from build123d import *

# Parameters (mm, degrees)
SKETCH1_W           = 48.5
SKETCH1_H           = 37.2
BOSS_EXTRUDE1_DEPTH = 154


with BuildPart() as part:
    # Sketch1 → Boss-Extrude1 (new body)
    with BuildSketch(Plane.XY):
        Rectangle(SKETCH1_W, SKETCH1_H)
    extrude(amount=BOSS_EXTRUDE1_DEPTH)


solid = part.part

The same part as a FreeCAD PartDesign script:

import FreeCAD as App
import Part
import Sketcher
Q = App.Units.Quantity

doc = App.newDocument("Part")
body = doc.addObject("PartDesign::Body", "Body")

sketch1 = body.newObject("Sketcher::SketchObject", "Sketch")
sketch1.AttachmentSupport = (doc.getObject("XY_Plane"), [""])
sketch1.MapMode = "FlatFace"
sketch1.addGeometry(Part.LineSegment(App.Vector(-24, 19, 0), App.Vector(-24, -19, 0)), False)
sketch1.addGeometry(Part.LineSegment(App.Vector(-24, -19, 0), App.Vector(24, -19, 0)), False)
sketch1.addGeometry(Part.LineSegment(App.Vector(24, -19, 0), App.Vector(24, 19, 0)), False)
sketch1.addGeometry(Part.LineSegment(App.Vector(24, 19, 0), App.Vector(-24, 19, 0)), False)
sketch1.addConstraint(Sketcher.Constraint("Coincident", 0, 2, 1, 1))
sketch1.addConstraint(Sketcher.Constraint("Coincident", 1, 2, 2, 1))
sketch1.addConstraint(Sketcher.Constraint("Coincident", 2, 2, 3, 1))
sketch1.addConstraint(Sketcher.Constraint("Coincident", 3, 2, 0, 1))
sketch1.addConstraint(Sketcher.Constraint("Vertical", 0))
sketch1.addConstraint(Sketcher.Constraint("Horizontal", 1))
sketch1.addConstraint(Sketcher.Constraint("Vertical", 2))
sketch1.addConstraint(Sketcher.Constraint("Horizontal", 3))
sketch1.addConstraint(Sketcher.Constraint("Symmetric", 0, 2, 2, 2, -1, 1))
sketch1.addConstraint(Sketcher.Constraint("DistanceX", 1, 1, 1, 2, Q("48.5 mm")))
sketch1.addConstraint(Sketcher.Constraint("DistanceY", 0, 2, 0, 1, Q("37.2 mm")))
pad1 = body.newObject("PartDesign::Pad", "Pad")
pad1.Profile = sketch1
pad1.Length = 154

doc.recompute()
